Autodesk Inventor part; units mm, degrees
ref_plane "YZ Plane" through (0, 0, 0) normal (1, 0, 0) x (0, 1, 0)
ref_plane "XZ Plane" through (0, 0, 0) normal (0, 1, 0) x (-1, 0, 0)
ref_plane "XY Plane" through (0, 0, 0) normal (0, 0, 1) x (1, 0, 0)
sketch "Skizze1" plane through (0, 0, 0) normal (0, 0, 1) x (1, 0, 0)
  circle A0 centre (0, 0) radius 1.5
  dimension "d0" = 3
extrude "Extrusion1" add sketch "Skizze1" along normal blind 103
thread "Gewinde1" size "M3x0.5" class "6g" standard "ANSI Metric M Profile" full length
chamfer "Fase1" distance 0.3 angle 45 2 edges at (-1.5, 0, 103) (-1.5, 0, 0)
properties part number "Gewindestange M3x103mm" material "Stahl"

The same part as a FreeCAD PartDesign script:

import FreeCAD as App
import Part
import Sketcher
from FreeCAD import Vector
Q = App.Units.Quantity


def edges_at(feature, points):
    """Names of the edges that pass closest to the given points."""
    edges = feature.Shape.Edges
    near = lambda p: min(range(len(edges)), key=lambda i: edges[i].distToShape(Part.Vertex(*p))[0])
    return sorted({f"Edge{near(p) + 1}" for p in points})

doc = App.newDocument("Part")
params = doc.addObject("Spreadsheet::Sheet", "Params")
for row, (alias, value) in enumerate([
    ("sketch1_diameter", "3 mm"),
    ("pad1_length", "103 mm"),
    ("chamfer_size", "0.3 mm"),
], start=1):
    params.set(f"A{row}", alias)
    params.set(f"B{row}", "=" + value)
    params.setAlias(f"B{row}", alias)

body = doc.addObject("PartDesign::Body", "Body")

# Sketch on XY plane
sketch1 = body.newObject("Sketcher::SketchObject", "Sketch")
sketch1.AttachmentSupport = (doc.getObject("XY_Plane"), [""])
sketch1.MapMode = "FlatFace"
sketch1.addGeometry(Part.Circle(Vector(0, 0, 0), Vector(0, 0, 1), 1.5), False)
sketch1.addConstraint([
    Sketcher.Constraint("Coincident", 0, 3, -1, 1),
    Sketcher.Constraint("Diameter", 0, Q("3 mm")),
])
sketch1.setExpression("Constraints[1]", "Params.sketch1_diameter")
pad1 = body.newObject("PartDesign::Pad", "Pad")
pad1.Profile = sketch1
pad1.setExpression("Length", "Params.pad1_length")
doc.recompute()

chamfer = body.newObject("PartDesign::Chamfer", "Chamfer")
chamfer.Base = (pad1, edges_at(pad1, [(-1.5, 0, 103), (-1.5, 0, 0)]))
chamfer.setExpression("Size", "Params.chamfer_size")

doc.recompute()
